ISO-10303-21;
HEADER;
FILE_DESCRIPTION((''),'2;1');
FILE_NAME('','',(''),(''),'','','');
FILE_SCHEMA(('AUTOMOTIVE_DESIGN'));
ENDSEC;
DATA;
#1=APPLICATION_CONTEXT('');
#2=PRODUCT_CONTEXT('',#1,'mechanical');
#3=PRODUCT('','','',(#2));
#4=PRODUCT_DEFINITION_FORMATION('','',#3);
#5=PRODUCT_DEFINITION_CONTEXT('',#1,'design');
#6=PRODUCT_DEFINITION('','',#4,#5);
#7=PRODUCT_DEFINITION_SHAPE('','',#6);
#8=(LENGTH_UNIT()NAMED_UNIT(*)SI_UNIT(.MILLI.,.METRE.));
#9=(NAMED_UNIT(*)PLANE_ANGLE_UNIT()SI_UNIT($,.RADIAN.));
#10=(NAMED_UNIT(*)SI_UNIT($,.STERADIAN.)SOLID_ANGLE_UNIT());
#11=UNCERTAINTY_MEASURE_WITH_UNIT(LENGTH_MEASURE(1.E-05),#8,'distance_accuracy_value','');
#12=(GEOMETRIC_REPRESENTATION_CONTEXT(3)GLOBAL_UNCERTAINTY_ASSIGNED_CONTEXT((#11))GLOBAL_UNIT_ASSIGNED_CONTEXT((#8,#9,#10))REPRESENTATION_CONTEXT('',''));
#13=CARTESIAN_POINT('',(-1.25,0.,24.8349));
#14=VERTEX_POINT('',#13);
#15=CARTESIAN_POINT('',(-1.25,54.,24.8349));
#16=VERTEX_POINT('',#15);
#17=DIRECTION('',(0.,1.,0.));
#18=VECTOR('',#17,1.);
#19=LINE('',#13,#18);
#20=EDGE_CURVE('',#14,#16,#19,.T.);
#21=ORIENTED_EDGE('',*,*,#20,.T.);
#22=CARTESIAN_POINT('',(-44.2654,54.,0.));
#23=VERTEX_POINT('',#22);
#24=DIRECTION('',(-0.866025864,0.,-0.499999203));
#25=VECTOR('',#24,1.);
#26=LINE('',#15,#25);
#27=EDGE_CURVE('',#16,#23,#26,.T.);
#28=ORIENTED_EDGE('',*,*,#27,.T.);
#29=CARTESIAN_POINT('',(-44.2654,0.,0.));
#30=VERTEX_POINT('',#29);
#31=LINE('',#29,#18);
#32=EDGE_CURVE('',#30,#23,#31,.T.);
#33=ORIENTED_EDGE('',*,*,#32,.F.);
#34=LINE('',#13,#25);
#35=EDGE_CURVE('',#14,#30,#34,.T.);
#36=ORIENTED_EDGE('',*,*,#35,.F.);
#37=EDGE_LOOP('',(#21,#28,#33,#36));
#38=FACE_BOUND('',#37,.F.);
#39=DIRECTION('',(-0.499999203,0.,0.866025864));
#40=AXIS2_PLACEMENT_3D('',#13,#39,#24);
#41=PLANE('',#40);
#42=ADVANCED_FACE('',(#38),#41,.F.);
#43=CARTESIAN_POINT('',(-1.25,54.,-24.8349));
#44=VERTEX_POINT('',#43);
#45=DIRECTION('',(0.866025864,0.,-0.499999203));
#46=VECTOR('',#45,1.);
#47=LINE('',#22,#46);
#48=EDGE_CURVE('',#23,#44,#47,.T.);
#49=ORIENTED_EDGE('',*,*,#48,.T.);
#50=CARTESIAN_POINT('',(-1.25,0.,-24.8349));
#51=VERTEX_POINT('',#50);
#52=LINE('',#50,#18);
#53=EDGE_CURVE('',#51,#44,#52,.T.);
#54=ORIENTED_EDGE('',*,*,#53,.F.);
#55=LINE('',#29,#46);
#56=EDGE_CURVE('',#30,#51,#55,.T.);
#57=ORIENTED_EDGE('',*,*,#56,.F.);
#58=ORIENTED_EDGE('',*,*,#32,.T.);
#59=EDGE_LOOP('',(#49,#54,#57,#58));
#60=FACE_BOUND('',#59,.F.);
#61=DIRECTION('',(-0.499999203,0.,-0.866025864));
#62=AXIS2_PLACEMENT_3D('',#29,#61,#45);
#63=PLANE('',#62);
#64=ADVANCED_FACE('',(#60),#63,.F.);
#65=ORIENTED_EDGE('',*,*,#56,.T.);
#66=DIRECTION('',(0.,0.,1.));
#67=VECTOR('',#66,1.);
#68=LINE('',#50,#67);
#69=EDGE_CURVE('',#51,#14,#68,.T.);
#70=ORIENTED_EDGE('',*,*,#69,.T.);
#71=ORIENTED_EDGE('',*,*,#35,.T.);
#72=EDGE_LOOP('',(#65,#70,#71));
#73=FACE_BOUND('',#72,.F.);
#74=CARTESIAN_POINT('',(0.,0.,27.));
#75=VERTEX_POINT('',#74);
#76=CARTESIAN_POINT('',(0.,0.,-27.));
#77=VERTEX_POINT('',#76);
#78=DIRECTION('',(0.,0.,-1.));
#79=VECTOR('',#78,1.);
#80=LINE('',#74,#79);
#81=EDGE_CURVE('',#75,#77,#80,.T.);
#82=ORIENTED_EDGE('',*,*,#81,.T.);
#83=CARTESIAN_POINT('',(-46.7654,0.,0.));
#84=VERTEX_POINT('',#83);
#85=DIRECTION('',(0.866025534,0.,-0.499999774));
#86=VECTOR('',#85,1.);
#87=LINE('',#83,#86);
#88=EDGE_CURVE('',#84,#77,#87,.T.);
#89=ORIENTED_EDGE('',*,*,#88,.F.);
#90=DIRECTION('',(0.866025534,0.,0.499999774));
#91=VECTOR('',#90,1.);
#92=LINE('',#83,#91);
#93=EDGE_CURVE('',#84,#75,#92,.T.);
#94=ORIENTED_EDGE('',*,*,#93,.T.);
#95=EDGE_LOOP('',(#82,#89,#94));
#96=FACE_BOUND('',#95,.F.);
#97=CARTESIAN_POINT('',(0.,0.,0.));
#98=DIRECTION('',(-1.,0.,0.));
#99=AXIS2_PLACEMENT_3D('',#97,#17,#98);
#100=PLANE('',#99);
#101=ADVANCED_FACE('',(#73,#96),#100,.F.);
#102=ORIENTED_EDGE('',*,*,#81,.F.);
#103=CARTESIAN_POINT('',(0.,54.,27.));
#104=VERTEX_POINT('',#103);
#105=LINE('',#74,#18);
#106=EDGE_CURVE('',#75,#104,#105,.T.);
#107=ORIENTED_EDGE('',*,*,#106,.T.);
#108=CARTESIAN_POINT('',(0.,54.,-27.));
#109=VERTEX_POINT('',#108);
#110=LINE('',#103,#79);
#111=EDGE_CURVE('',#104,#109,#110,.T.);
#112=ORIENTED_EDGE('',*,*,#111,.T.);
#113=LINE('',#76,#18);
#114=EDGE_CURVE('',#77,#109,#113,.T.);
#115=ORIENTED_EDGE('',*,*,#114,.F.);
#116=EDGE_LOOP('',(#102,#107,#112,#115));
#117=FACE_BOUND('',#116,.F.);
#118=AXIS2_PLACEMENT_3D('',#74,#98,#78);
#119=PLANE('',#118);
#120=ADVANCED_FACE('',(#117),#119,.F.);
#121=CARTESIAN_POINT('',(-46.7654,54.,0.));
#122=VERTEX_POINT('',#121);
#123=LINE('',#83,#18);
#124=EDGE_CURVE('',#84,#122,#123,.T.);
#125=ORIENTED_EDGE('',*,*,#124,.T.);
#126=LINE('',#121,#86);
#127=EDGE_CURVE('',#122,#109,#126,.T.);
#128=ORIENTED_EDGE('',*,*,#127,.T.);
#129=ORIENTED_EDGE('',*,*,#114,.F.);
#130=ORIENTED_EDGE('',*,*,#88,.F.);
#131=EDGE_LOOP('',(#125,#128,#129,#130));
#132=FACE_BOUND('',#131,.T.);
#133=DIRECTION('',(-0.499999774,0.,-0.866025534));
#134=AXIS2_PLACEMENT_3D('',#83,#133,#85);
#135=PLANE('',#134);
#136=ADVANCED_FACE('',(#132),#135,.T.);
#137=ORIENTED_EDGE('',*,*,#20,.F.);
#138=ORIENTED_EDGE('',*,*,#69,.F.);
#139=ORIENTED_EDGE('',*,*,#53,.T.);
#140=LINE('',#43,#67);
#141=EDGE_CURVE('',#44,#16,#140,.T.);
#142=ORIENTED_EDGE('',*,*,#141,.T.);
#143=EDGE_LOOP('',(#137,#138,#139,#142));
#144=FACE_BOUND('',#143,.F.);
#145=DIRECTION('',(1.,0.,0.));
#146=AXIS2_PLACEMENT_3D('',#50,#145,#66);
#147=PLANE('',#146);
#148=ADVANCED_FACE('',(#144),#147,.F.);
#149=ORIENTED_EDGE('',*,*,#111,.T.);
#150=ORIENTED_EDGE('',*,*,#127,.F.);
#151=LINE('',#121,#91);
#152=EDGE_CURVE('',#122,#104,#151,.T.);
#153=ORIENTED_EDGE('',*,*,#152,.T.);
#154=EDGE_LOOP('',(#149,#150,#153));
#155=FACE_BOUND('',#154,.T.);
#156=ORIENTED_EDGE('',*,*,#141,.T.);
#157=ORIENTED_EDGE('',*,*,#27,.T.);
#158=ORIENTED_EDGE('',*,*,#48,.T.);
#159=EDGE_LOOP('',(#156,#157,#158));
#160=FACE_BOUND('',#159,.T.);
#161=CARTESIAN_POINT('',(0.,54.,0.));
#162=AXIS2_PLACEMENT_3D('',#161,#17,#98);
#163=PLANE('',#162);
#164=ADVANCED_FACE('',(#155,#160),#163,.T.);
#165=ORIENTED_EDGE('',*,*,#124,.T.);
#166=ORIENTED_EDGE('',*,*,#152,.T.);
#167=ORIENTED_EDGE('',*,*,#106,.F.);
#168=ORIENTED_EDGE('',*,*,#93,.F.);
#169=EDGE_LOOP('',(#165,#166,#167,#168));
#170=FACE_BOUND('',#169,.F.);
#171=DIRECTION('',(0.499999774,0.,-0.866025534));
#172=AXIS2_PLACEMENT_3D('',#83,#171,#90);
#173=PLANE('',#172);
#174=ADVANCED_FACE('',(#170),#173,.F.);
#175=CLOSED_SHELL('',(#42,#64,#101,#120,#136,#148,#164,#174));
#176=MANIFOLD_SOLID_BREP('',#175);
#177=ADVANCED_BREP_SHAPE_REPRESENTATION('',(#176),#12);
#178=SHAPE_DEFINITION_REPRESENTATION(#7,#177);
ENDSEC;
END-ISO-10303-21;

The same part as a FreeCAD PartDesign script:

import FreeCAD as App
import Part
import Sketcher
from FreeCAD import Vector
Q = App.Units.Quantity


def add_polygon(sketch, points):
    """Adds a closed chain of lines whose ends are joined by coincident constraints."""
    first, n = sketch.GeometryCount, len(points)
    for a, b in zip(points, points[1:] + points[:1]):
        sketch.addGeometry(Part.LineSegment(App.Vector(*a, 0), App.Vector(*b, 0)), False)
    for i in range(n):
        sketch.addConstraint(Sketcher.Constraint("Coincident", first + i, 2, first + (i + 1) % n, 1))

doc = App.newDocument("Part")
body = doc.addObject("PartDesign::Body", "Body")

# Sketch on XZ plane
sketch1 = doc.addObject("Sketcher::SketchObject", "Sketch")
body.addObject(sketch1)
sketch1.AttachmentSupport = (doc.XZ_Plane, [""])
sketch1.MapMode = "FlatFace"
add_polygon(sketch1, [(-46.7654, 0), (0, 27), (0, -27)])  # lines 0-2
add_polygon(sketch1, [(-44.2654, 0), (-1.25, -24.8349), (-1.25, 24.8349)])  # lines 3-5
sketch1.addConstraint(Sketcher.Constraint("Vertical", 1))
sketch1.addConstraint(Sketcher.Constraint("Vertical", 4))
sketch1.addConstraint(Sketcher.Constraint("Symmetric", 0, 2, 1, 2, -1, 1))
sketch1.addConstraint(Sketcher.Constraint("PointOnObject", 2, 2, -1))
sketch1.addConstraint(Sketcher.Constraint("PointOnObject", 5, 2, -1))
sketch1.addConstraint(Sketcher.Constraint("Parallel", 2, 3))
sketch1.addConstraint(Sketcher.Constraint("Parallel", 0, 5))
sketch1.addConstraint(Sketcher.Constraint("DistanceY", 1, 2, 1, 1, Q("54 mm")))
sketch1.addConstraint(Sketcher.Constraint("Distance", 0, Q("54 mm")))
sketch1.addConstraint(Sketcher.Constraint("DistanceX", 3, 2, -1, 1, Q("1.25 mm")))
sketch1.addConstraint(Sketcher.Constraint("DistanceX", 2, 2, 5, 2, Q("2.5 mm")))
pad1 = doc.addObject("PartDesign::Pad", "Pad")
body.addObject(pad1)
pad1.Profile = sketch1
pad1.Length = 54
pad1.Reversed = True

doc.recompute()
